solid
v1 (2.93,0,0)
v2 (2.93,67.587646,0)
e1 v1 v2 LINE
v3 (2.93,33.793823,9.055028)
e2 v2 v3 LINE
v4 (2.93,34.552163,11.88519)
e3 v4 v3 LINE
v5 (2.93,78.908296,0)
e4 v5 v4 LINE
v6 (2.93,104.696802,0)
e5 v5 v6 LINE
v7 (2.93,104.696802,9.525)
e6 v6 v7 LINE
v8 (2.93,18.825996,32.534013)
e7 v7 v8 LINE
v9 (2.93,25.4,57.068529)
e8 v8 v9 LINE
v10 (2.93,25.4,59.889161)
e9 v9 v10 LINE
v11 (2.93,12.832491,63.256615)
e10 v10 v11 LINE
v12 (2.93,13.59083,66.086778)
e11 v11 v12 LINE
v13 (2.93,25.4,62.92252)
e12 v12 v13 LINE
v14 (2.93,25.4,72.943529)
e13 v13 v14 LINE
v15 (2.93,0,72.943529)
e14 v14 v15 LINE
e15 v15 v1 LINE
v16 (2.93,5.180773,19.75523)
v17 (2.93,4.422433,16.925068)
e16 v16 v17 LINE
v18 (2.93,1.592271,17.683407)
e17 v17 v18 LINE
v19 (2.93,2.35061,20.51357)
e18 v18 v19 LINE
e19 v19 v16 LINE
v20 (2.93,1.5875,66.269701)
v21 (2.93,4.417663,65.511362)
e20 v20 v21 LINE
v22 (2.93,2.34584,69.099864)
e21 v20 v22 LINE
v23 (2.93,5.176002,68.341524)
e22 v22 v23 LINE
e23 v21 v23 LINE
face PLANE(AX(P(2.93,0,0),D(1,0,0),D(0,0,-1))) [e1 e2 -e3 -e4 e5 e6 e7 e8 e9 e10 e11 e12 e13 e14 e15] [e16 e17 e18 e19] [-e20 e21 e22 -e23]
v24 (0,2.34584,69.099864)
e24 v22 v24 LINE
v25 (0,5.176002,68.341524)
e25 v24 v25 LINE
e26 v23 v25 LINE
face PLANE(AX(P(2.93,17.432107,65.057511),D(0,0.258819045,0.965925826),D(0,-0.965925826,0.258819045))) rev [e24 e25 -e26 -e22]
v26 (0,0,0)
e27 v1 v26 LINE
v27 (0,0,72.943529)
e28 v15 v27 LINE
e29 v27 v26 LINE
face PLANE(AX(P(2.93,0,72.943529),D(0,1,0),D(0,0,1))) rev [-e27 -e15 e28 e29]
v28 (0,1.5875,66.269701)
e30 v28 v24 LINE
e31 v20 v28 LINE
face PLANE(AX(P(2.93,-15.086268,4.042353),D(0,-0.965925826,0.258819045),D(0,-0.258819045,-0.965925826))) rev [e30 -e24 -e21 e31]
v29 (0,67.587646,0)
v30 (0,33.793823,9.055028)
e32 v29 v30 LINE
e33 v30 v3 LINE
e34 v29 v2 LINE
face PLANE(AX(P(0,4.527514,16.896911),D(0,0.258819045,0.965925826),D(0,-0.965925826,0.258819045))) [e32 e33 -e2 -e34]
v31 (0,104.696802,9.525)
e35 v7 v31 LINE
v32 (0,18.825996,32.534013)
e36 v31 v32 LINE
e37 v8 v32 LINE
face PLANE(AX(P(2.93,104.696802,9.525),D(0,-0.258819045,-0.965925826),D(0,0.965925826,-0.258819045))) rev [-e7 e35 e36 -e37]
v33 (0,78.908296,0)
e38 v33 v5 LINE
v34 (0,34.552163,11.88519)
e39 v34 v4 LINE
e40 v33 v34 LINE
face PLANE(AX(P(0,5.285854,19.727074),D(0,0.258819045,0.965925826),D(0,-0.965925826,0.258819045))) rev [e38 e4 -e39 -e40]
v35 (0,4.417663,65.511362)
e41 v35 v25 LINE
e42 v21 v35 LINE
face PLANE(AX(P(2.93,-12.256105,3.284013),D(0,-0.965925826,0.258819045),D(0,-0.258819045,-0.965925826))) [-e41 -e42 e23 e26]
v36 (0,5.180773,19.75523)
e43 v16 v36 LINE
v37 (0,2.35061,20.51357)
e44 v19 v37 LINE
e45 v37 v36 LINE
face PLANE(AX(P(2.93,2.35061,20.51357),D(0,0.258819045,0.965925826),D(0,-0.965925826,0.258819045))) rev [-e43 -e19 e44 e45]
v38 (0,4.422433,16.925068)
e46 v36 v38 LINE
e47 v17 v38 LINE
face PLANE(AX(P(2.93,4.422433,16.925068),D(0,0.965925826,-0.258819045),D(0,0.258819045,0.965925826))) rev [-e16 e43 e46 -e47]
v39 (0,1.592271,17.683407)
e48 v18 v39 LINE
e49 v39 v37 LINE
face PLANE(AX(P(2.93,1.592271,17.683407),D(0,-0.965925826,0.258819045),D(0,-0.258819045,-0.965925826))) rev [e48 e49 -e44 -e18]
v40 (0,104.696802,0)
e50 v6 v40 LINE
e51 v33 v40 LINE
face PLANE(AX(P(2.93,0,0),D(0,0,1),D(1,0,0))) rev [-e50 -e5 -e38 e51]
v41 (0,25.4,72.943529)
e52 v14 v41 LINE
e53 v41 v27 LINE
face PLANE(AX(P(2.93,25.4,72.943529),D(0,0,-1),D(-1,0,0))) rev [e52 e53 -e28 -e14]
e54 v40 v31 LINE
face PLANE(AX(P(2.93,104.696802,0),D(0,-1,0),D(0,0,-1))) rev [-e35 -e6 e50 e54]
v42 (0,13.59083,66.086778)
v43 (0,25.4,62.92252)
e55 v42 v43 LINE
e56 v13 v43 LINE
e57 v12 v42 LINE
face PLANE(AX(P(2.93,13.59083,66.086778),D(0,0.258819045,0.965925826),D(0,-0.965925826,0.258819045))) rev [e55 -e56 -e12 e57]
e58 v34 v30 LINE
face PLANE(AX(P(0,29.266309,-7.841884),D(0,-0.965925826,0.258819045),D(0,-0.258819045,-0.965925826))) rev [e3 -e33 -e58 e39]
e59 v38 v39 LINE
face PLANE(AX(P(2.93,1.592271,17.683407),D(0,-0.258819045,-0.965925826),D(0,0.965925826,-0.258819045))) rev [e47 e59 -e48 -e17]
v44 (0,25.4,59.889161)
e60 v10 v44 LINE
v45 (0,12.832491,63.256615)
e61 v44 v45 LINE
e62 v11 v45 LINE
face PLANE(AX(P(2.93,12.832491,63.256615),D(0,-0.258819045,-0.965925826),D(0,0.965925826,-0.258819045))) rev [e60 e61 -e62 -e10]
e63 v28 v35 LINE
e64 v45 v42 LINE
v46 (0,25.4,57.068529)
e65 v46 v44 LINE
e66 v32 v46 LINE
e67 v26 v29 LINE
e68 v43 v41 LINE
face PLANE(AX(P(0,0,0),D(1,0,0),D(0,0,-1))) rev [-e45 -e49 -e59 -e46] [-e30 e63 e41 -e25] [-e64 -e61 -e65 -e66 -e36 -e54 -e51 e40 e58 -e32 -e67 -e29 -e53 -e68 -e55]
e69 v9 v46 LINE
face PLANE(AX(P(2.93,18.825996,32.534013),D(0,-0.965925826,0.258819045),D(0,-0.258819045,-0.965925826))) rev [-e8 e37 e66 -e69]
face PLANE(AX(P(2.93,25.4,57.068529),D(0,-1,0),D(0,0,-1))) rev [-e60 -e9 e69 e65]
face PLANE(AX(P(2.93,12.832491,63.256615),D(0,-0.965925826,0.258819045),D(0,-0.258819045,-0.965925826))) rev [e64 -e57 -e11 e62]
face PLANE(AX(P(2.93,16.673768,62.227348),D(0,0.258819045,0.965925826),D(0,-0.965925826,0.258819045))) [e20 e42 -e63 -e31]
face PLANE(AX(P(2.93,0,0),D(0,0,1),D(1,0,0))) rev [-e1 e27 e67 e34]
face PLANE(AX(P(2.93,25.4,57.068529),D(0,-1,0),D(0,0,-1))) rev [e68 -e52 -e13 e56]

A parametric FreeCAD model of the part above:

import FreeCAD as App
import Part
import Sketcher
from FreeCAD import Vector
Q = App.Units.Quantity


def add_polygon(sketch, points):
    """Adds a closed chain of lines whose ends are joined by coincident constraints."""
    first, n = sketch.GeometryCount, len(points)
    for a, b in zip(points, points[1:] + points[:1]):
        sketch.addGeometry(Part.LineSegment(App.Vector(*a, 0), App.Vector(*b, 0)), False)
    for i in range(n):
        sketch.addConstraint(Sketcher.Constraint("Coincident", first + i, 2, first + (i + 1) % n, 1))

doc = App.newDocument("Part")
body = doc.addObject("PartDesign::Body", "Body")

# Sketch on YZ plane
sketch1 = doc.addObject("Sketcher::SketchObject", "Sketch")
body.addObject(sketch1)
sketch1.AttachmentSupport = (doc.YZ_Plane, [""])
sketch1.MapMode = "FlatFace"
add_polygon(sketch1, [(0, 0), (104.696802, 0), (104.696802, 9.525), (18.825996, 32.534013), (25.4, 57.068529), (25.4, 72.943529), (0, 72.943529)])  # lines 0-6
sketch1.addConstraint([
    Sketcher.Constraint("Horizontal", 0),
    Sketcher.Constraint("Vertical", 1),
    Sketcher.Constraint("Vertical", 4),
    Sketcher.Constraint("Horizontal", 5),
    Sketcher.Constraint("Vertical", 6),
    Sketcher.Constraint("Coincident", 6, 2, -1, 1),
    Sketcher.Constraint("Perpendicular", 2, 3),
    Sketcher.Constraint("DistanceX", 5, 2, 5, 1, Q("1 in")),
    Sketcher.Constraint("Distance", 3, Q("1 in")),
    Sketcher.Constraint("Angle", 2, Q("165 deg")),
    Sketcher.Constraint("Distance", 2, Q("3.5 in")),
    Sketcher.Constraint("DistanceY", 1, 1, 1, 2, Q("0.375 in")),
    Sketcher.Constraint("DistanceY", 4, 1, 4, 2, Q("0.625 in")),
])
pad1 = doc.addObject("PartDesign::Pad", "Pad")
body.addObject(pad1)
pad1.Profile = sketch1
pad1.Length = 2.93

# Sketch on YZ plane
sketch2 = doc.addObject("Sketcher::SketchObject", "Sketch001")
body.addObject(sketch2)
sketch2.AttachmentSupport = (doc.YZ_Plane, [""])
sketch2.MapMode = "FlatFace"
sketch2.AttachmentOffset = App.Placement(Vector(0, 0, 2.93), App.Rotation())
add_polygon(sketch2, [(67.587645, 0), (78.908296, 0), (34.552163, 11.88519), (33.793823, 9.055028)])  # lines 0-3
sketch2.addConstraint([
    Sketcher.Constraint("Horizontal", 0),
    Sketcher.Constraint("PointOnObject", 0, 2, -1),
    Sketcher.Constraint("Perpendicular", 1, 2),
    Sketcher.Constraint("Perpendicular", 2, 3),
    Sketcher.Constraint("Angle", 1, Q("165 deg")),
    Sketcher.Constraint("Distance", 2, 2.93),
    Sketcher.Constraint("Distance", 1, 45.920849),
    Sketcher.Constraint("DistanceX", -1, 1, 0, 2, 78.908296),
])
pocket1 = doc.addObject("PartDesign::Pocket", "Pocket")
body.addObject(pocket1)
pocket1.Profile = sketch2
pocket1.Type = "ThroughAll"

# Sketch on YZ plane
sketch3 = doc.addObject("Sketcher::SketchObject", "Sketch002")
body.addObject(sketch3)
sketch3.AttachmentSupport = (doc.YZ_Plane, [""])
sketch3.MapMode = "FlatFace"
add_polygon(sketch3, [(12.832491, 63.256615), (13.59083, 66.086778), (26.15834, 62.719324), (25.4, 59.889161)])  # lines 0-3
sketch3.addConstraint([
    Sketcher.Constraint("Perpendicular", 0, 1),
    Sketcher.Constraint("Perpendicular", 1, 2),
    Sketcher.Constraint("Perpendicular", 2, 3),
    Sketcher.Constraint("DistanceX", -1, 1, 2, 2, Q("1 in")),
    Sketcher.Constraint("Angle", 0, Q("75 deg")),
    Sketcher.Constraint("Distance", 0, 2.93),
    Sketcher.Constraint("DistanceX", -1, 1, 0, 2, 13.59083),
    Sketcher.Constraint("DistanceY", -1, 1, 2, 2, 59.889161),
])
pocket2 = doc.addObject("PartDesign::Pocket", "Pocket001")
body.addObject(pocket2)
pocket2.Profile = sketch3
pocket2.Type = "ThroughAll"
pocket2.Reversed = True

# Sketch on YZ plane
sketch4 = doc.addObject("Sketcher::SketchObject", "Sketch003")
body.addObject(sketch4)
sketch4.AttachmentSupport = (doc.YZ_Plane, [""])
sketch4.MapMode = "FlatFace"
add_polygon(sketch4, [(5.176002, 68.341524), (4.417663, 65.511362), (1.5875, 66.269701), (2.34584, 69.099864)])  # lines 0-3
sketch4.addConstraint([
    Sketcher.Constraint("Perpendicular", 0, 1),
    Sketcher.Constraint("Perpendicular", 1, 2),
    Sketcher.Constraint("Perpendicular", 2, 3),
    Sketcher.Constraint("Equal", 0, 1),
    Sketcher.Constraint("Angle", 0, Q("-105 deg")),
    Sketcher.Constraint("DistanceX", -1, 1, 1, 2, Q("0.0625 in")),
    Sketcher.Constraint("Distance", 0, 2.93),
    Sketcher.Constraint("DistanceY", -1, 1, 1, 2, 66.269701),
])
pocket3 = doc.addObject("PartDesign::Pocket", "Pocket002")
body.addObject(pocket3)
pocket3.Profile = sketch4
pocket3.Type = "ThroughAll"
pocket3.Reversed = True

# Sketch on YZ plane
sketch5 = doc.addObject("Sketcher::SketchObject", "Sketch004")
body.addObject(sketch5)
sketch5.AttachmentSupport = (doc.YZ_Plane, [""])
sketch5.MapMode = "FlatFace"
add_polygon(sketch5, [(1.592271, 17.683407), (2.35061, 20.51357), (5.180773, 19.75523), (4.422433, 16.925068)])  # lines 0-3
sketch5.addConstraint([
    Sketcher.Constraint("Perpendicular", 0, 1),
    Sketcher.Constraint("Perpendicular", 1, 2),
    Sketcher.Constraint("Perpendicular", 2, 3),
    Sketcher.Constraint("Equal", 0, 1),
    Sketcher.Constraint("Angle", 0, Q("75 deg")),
    Sketcher.Constraint("Distance", 0, 2.93),
    Sketcher.Constraint("DistanceX", -1, 1, 0, 2, 2.35061),
    Sketcher.Constraint("DistanceY", -1, 1, 0, 2, 20.51357),
])
pocket4 = doc.addObject("PartDesign::Pocket", "Pocket003")
body.addObject(pocket4)
pocket4.Profile = sketch5
pocket4.Type = "ThroughAll"
pocket4.Reversed = True

doc.recompute()
